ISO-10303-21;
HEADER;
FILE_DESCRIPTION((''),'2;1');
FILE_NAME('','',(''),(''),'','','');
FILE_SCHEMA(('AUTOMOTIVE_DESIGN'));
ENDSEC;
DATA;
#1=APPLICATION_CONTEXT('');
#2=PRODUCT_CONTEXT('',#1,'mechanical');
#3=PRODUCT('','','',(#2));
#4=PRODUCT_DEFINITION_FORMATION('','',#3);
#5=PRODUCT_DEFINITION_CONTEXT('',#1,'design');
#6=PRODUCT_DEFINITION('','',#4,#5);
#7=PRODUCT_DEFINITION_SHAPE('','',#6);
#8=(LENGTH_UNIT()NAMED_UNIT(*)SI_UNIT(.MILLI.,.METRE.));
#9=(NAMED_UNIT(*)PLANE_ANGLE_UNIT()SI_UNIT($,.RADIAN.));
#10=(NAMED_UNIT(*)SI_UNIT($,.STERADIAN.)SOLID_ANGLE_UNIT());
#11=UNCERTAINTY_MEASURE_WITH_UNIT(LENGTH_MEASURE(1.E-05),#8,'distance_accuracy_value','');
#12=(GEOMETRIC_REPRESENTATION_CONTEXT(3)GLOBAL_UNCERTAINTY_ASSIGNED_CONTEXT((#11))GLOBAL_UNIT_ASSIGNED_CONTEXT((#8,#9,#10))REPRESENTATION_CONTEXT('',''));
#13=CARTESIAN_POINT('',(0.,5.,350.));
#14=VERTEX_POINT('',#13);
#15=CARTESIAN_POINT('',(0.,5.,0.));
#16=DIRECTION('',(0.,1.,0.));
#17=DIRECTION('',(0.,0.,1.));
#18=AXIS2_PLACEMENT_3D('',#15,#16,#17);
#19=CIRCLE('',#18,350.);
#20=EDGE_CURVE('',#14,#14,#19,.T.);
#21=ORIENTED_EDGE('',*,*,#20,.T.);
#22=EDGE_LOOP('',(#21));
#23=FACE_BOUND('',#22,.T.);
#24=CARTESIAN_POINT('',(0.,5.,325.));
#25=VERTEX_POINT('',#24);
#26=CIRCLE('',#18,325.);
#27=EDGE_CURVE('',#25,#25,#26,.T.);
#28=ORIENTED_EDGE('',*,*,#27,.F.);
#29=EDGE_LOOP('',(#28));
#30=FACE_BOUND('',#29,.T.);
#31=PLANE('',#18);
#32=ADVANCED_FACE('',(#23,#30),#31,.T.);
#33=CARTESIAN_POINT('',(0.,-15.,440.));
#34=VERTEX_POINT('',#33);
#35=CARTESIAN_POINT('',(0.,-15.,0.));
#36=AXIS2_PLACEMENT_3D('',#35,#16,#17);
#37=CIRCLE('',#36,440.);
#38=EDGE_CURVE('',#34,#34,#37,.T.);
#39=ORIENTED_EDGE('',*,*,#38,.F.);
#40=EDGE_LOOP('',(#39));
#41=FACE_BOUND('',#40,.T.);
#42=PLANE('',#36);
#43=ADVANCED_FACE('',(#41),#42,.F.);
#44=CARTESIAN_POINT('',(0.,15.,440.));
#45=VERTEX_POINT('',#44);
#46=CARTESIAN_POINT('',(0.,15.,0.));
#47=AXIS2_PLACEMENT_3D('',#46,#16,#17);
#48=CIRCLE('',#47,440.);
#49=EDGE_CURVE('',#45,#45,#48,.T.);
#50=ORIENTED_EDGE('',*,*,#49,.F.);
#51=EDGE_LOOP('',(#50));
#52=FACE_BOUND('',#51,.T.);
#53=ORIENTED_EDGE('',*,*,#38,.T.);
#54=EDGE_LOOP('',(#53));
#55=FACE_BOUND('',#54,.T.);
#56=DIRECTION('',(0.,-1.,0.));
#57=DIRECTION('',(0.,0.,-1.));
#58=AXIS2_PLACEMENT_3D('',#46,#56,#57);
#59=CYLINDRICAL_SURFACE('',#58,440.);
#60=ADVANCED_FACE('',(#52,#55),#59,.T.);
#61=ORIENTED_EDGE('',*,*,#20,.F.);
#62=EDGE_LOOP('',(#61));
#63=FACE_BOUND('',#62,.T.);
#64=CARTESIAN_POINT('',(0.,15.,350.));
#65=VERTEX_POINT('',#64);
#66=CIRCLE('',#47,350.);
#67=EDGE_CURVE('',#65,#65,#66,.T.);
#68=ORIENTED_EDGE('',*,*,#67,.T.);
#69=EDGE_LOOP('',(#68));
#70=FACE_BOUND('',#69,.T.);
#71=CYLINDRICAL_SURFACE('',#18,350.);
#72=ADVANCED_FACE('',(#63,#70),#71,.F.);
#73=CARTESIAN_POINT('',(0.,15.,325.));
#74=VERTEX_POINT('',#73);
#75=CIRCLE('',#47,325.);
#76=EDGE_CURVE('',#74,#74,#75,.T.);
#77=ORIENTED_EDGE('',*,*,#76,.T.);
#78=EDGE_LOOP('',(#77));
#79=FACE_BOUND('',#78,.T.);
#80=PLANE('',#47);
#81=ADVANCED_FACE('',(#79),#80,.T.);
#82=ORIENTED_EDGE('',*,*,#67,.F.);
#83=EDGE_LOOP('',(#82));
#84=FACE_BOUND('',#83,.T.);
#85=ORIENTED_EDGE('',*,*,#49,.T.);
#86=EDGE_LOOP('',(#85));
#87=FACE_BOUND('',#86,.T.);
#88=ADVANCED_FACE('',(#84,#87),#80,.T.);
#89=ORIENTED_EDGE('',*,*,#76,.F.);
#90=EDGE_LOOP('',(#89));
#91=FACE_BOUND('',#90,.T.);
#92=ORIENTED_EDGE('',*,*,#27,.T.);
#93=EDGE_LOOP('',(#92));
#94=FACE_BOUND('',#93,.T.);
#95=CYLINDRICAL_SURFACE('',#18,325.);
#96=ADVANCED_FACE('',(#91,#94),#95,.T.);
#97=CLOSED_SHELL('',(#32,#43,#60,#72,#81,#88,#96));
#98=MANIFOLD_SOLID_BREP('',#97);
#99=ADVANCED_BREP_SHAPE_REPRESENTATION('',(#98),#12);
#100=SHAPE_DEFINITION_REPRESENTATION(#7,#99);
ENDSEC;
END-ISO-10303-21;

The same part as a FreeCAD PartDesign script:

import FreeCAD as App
import Part
import Sketcher
from FreeCAD import Vector

doc = App.newDocument("Part")
params = doc.addObject("Spreadsheet::Sheet", "Params")
for row, (alias, value) in enumerate([
    ("sketch1_diameter", "880 mm"),
    ("pad1_length", "30 mm"),
    ("sketch2_diameter", "700 mm"),
    ("sketch2_diameter2", "650 mm"),
    ("pocket1_length", "10 mm"),
], start=1):
    params.set(f"A{row}", alias)
    params.set(f"B{row}", "=" + value)
    params.setAlias(f"B{row}", alias)

body = doc.addObject("PartDesign::Body", "Body")

# Sketch on XZ plane
sketch1 = doc.addObject("Sketcher::SketchObject", "Sketch")
body.addObject(sketch1)
sketch1.AttachmentSupport = (doc.XZ_Plane, [""])
sketch1.MapMode = "FlatFace"
sketch1.addGeometry(Part.Circle(Vector(0, 0, 0), Vector(0, 0, 1), 440), False)
sketch1.addConstraint([
    Sketcher.Constraint("Coincident", 0, 3, -1, 1),
    Sketcher.Constraint("Diameter", 0, 880.0),
])
sketch1.setExpression("Constraints[1]", "Params.sketch1_diameter")
pad1 = doc.addObject("PartDesign::Pad", "Pad")
body.addObject(pad1)
pad1.Profile = sketch1
pad1.setExpression("Length", "Params.pad1_length")
pad1.Midplane = True

# Sketch on XZ plane
sketch2 = doc.addObject("Sketcher::SketchObject", "Sketch001")
body.addObject(sketch2)
sketch2.AttachmentSupport = (doc.XZ_Plane, [""])
sketch2.MapMode = "FlatFace"
sketch2.AttachmentOffset = App.Placement(Vector(0, 0, -15), App.Rotation())
sketch2.addGeometry([
    Part.Circle(Vector(0, 0, 0), Vector(0, 0, 1), 350),
    Part.Circle(Vector(0, 0, 0), Vector(0, 0, 1), 325),
], False)
sketch2.addConstraint([
    Sketcher.Constraint("Coincident", 0, 3, -1, 1),
    Sketcher.Constraint("Coincident", 1, 3, -1, 1),
    Sketcher.Constraint("Diameter", 0, 700.0),
    Sketcher.Constraint("Diameter", 1, 650.0),
])
sketch2.setExpression("Constraints[2]", "Params.sketch2_diameter")
sketch2.setExpression("Constraints[3]", "Params.sketch2_diameter2")
pocket1 = doc.addObject("PartDesign::Pocket", "Pocket")
body.addObject(pocket1)
pocket1.Profile = sketch2
pocket1.setExpression("Length", "Params.pocket1_length")
pocket1.Reversed = True

doc.recompute()
